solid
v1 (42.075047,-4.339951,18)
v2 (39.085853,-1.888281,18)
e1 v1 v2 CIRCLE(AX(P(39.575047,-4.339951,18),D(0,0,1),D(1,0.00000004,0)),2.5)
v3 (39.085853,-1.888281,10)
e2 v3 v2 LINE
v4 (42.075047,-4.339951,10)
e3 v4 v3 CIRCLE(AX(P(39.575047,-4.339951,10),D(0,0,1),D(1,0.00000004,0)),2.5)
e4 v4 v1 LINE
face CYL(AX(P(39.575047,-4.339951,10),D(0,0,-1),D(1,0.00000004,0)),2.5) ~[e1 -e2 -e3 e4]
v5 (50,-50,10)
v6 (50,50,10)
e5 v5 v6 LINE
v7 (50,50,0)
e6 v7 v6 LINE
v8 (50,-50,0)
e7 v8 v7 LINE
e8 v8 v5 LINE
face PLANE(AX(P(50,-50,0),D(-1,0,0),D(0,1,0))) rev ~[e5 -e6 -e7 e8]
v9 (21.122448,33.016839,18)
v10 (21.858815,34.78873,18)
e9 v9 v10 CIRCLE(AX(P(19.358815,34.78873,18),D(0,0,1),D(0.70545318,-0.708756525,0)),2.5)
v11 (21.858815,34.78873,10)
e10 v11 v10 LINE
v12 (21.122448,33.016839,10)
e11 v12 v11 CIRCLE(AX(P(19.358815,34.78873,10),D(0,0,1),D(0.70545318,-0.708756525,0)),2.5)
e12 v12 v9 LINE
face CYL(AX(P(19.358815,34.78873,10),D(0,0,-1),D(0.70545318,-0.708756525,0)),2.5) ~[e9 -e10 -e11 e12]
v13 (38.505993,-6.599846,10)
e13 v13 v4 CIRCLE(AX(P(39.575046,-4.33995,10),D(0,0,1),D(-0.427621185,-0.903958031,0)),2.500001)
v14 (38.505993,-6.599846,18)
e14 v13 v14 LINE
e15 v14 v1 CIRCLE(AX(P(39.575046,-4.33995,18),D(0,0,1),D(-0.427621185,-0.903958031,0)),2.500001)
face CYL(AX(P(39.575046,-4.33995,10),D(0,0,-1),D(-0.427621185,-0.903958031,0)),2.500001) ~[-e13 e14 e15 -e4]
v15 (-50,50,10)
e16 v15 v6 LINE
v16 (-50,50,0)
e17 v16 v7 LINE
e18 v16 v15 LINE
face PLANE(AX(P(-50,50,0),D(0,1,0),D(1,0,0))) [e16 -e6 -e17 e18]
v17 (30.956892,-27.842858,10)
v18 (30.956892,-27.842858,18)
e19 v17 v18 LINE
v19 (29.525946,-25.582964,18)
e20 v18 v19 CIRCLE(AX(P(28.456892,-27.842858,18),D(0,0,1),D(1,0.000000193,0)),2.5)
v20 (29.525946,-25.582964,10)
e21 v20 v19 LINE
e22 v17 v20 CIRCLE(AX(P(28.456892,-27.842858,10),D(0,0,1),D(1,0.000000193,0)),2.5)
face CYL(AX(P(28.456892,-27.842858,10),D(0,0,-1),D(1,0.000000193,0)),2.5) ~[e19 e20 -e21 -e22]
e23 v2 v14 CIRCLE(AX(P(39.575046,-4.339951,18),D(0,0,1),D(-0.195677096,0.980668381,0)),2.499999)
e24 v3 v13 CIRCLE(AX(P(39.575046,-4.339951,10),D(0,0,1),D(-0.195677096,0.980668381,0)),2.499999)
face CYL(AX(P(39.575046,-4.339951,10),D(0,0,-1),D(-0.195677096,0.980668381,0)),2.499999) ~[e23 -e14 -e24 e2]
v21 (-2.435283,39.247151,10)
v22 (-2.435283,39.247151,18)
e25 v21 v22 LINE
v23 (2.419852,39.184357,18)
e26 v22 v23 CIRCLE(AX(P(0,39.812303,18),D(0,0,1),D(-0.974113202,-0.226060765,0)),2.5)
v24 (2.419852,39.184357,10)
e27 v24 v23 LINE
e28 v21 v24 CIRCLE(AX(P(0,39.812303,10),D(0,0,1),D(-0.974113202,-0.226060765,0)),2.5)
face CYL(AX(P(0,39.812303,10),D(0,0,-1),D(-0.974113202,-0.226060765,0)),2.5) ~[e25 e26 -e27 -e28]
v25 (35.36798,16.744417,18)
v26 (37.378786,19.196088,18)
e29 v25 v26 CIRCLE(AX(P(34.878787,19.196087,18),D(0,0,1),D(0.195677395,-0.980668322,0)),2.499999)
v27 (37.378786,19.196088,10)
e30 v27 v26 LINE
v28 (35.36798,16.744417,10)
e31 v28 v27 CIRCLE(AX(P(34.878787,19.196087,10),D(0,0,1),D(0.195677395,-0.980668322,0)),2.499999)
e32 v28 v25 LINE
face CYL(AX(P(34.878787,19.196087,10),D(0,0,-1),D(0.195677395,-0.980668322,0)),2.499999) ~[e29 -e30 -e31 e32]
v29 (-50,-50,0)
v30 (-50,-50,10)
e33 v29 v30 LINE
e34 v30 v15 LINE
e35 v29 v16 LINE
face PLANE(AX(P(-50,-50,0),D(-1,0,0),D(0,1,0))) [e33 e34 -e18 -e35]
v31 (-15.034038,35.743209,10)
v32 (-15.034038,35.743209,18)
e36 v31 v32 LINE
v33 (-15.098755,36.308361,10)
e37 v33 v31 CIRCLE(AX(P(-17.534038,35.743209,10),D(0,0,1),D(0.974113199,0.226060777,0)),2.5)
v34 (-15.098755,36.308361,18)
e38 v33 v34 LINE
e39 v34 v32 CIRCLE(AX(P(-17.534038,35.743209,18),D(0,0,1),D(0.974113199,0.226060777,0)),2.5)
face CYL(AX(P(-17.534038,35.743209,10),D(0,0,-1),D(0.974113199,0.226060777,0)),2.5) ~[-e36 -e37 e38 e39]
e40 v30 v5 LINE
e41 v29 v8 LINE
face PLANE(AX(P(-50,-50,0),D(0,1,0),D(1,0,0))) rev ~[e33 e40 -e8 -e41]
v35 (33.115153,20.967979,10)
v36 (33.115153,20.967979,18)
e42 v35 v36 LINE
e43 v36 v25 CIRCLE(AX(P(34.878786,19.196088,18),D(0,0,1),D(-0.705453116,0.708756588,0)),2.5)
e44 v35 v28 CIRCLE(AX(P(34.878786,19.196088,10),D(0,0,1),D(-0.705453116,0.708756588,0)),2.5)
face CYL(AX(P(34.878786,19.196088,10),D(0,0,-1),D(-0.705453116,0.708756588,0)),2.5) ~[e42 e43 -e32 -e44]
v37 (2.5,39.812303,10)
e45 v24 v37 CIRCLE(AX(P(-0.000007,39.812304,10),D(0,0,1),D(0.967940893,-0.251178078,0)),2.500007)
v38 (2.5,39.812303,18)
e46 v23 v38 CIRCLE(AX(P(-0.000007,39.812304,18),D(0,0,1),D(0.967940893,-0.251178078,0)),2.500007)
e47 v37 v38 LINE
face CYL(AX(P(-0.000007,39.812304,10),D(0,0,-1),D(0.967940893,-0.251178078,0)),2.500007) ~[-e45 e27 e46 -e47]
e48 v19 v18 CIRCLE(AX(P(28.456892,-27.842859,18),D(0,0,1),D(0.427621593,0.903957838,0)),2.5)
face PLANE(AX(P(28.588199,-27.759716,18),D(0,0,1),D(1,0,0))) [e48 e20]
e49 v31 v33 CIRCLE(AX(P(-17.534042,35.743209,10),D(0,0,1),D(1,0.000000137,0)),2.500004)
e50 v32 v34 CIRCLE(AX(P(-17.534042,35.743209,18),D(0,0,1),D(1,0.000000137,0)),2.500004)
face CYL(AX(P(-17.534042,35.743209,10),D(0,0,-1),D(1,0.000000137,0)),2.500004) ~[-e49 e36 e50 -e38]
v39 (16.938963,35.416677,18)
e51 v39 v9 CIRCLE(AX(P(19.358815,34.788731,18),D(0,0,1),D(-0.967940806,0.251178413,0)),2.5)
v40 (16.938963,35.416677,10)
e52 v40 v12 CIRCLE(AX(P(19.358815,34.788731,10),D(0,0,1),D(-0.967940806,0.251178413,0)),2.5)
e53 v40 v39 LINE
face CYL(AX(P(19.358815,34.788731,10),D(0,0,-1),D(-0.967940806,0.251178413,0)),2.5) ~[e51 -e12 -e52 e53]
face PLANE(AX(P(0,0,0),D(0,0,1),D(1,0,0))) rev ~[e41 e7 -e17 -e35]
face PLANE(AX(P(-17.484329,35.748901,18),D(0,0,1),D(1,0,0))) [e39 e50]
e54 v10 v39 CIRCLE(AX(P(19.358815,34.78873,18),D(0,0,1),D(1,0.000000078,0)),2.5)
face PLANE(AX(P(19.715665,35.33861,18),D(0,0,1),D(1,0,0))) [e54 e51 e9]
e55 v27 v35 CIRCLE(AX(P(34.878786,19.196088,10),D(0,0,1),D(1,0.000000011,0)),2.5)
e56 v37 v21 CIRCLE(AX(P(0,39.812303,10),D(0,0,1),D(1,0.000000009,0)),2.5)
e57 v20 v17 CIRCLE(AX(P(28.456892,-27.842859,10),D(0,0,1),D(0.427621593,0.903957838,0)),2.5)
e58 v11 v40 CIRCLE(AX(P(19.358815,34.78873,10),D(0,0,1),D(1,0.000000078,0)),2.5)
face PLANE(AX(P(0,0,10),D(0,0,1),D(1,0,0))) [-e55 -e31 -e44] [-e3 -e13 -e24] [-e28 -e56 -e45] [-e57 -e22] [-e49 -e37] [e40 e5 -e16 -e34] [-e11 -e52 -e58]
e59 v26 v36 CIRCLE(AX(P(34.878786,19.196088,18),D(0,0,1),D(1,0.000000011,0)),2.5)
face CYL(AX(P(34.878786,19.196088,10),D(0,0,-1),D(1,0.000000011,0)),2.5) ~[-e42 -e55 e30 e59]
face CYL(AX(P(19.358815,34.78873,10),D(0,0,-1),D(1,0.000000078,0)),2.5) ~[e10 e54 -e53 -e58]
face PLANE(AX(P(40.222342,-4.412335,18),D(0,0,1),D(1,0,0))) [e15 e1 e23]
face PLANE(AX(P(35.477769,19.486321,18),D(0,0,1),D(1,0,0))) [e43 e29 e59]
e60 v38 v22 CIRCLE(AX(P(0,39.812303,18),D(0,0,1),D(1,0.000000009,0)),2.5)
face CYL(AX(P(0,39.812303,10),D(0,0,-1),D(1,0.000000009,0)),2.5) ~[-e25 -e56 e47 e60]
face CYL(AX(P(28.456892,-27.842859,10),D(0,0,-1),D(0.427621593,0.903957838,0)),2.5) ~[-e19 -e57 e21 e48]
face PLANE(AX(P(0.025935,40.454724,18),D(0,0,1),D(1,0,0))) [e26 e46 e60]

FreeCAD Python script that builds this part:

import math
import FreeCAD as App
import Part
import Sketcher

V = App.Vector
Q = App.Units.Quantity


def add_polygon(sketch, points):
    """Adds a closed chain of lines whose ends are joined by coincident constraints."""
    first, n = sketch.GeometryCount, len(points)
    for a, b in zip(points, points[1:] + points[:1]):
        sketch.addGeometry(Part.LineSegment(App.Vector(*a, 0), App.Vector(*b, 0)), False)
    for i in range(n):
        sketch.addConstraint(Sketcher.Constraint("Coincident", first + i, 2, first + (i + 1) % n, 1))

doc = App.newDocument("Part")
body = doc.addObject("PartDesign::Body", "Body")

sketch1 = doc.addObject("Sketcher::SketchObject", "Sketch")
body.addObject(sketch1)
sketch1.AttachmentSupport = (doc.XY_Plane, [""])
sketch1.MapMode = "FlatFace"
add_polygon(sketch1, [(-50, 50), (-50, -50), (50, -50), (50, 50)])
sketch1.addConstraint([
    Sketcher.Constraint("Vertical", 0),
    Sketcher.Constraint("Horizontal", 1),
    Sketcher.Constraint("Vertical", 2),
    Sketcher.Constraint("Horizontal", 3),
    Sketcher.Constraint("Symmetric", 0, 2, 2, 2, -1, 1),
    Sketcher.Constraint("Equal", 3, 0),
    Sketcher.Constraint("DistanceX", 1, 1, 1, 2, Q("100 mm")),
])
pad1 = doc.addObject("PartDesign::Pad", "Pad")
body.addObject(pad1)
pad1.Profile = sketch1
pad1.Length = 10

sketch2 = doc.addObject("Sketcher::SketchObject", "Sketch001")
body.addObject(sketch2)
sketch2.AttachmentSupport = (doc.XY_Plane, [""])
sketch2.MapMode = "FlatFace"
sketch2.AttachmentOffset = App.Placement(V(0, 0, 10), App.Rotation())
sketch2.addGeometry([
    Part.ArcOfCircle(Part.Circle(V(-17.534038, 35.743209, 0), V(0, 0, 1), 2.5), math.radians(13.065263), math.radians(359.999998)),
    Part.ArcOfCircle(Part.Circle(V(-17.534042, 35.743209, 0), V(0, 0, 1), 2.500004), math.radians(0.000008), math.radians(13.065254)),
    Part.ArcOfCircle(Part.Circle(V(28.456892, -27.842858, 0), V(0, 0, 1), 2.5), math.radians(0.000011), math.radians(64.683287)),
    Part.ArcOfCircle(Part.Circle(V(28.456892, -27.842859, 0), V(0, 0, 1), 2.5), math.radians(64.683285), math.radians(360.000013)),
    Part.ArcOfCircle(Part.Circle(V(39.575047, -4.339951, 0), V(0, 0, 1), 2.5), math.radians(0.000002), math.radians(101.284324)),
    Part.ArcOfCircle(Part.Circle(V(39.575046, -4.339951, 0), V(0, 0, 1), 2.499999), math.radians(101.28428), math.radians(244.683313)),
    Part.ArcOfCircle(Part.Circle(V(39.575046, -4.33995, 0), V(0, 0, 1), 2.500001), math.radians(-115.316689), math.radians(-0.000017)),
    Part.ArcOfCircle(Part.Circle(V(34.878786, 19.196088, 0), V(0, 0, 1), 2.5), math.radians(0.000001), math.radians(134.866174)),
    Part.ArcOfCircle(Part.Circle(V(34.878786, 19.196088, 0), V(0, 0, 1), 2.5), math.radians(134.866162), math.radians(281.284316)),
    Part.ArcOfCircle(Part.Circle(V(34.878787, 19.196087, 0), V(0, 0, 1), 2.499999), math.radians(-78.715702), math.radians(0.000019)),
    Part.ArcOfCircle(Part.Circle(V(19.358815, 34.78873, 0), V(0, 0, 1), 2.5), math.radians(0.000004), math.radians(165.452718)),
    Part.ArcOfCircle(Part.Circle(V(19.358815, 34.788731, 0), V(0, 0, 1), 2.5), math.radians(165.452744), math.radians(314.866154)),
    Part.ArcOfCircle(Part.Circle(V(19.358815, 34.78873, 0), V(0, 0, 1), 2.5), math.radians(-45.133833), math.radians(-0.000004)),
    Part.ArcOfCircle(Part.Circle(V(0, 39.812303, 0), V(0, 0, 1), 2.5), math.radians(0.000001), math.radians(193.065264)),
    Part.ArcOfCircle(Part.Circle(V(0, 39.812303, 0), V(0, 0, 1), 2.5), math.radians(-166.934737), math.radians(-14.547253)),
    Part.ArcOfCircle(Part.Circle(V(-0.000007, 39.812304, 0), V(0, 0, 1), 2.500007), math.radians(-14.547236), math.radians(-0.000023)),
], False)
sketch2.addConstraint([
    Sketcher.Constraint("Coincident", 0, 1, 1, 2),
    Sketcher.Constraint("Coincident", 1, 1, 0, 2),
    Sketcher.Constraint("Coincident", 2, 1, 3, 2),
    Sketcher.Constraint("Coincident", 3, 1, 2, 2),
    Sketcher.Constraint("Coincident", 4, 2, 5, 1),
    Sketcher.Constraint("Coincident", 5, 2, 6, 1),
    Sketcher.Constraint("Coincident", 6, 2, 4, 1),
    Sketcher.Constraint("Coincident", 7, 2, 8, 1),
    Sketcher.Constraint("Coincident", 8, 2, 9, 1),
    Sketcher.Constraint("Coincident", 9, 2, 7, 1),
    Sketcher.Constraint("Coincident", 10, 2, 11, 1),
    Sketcher.Constraint("Coincident", 11, 2, 12, 1),
    Sketcher.Constraint("Coincident", 12, 2, 10, 1),
    Sketcher.Constraint("Coincident", 13, 2, 14, 1),
    Sketcher.Constraint("Coincident", 14, 2, 15, 1),
    Sketcher.Constraint("Coincident", 15, 2, 13, 1),
    Sketcher.Constraint("Coincident", 5, 3, 4, 3),
    Sketcher.Constraint("Coincident", 8, 3, 7, 3),
    Sketcher.Constraint("Coincident", 11, 3, 10, 3),
    Sketcher.Constraint("Coincident", 14, 3, 13, 3),
    Sketcher.Constraint("PointOnObject", 13, 3, -2),
    Sketcher.Constraint("Radius", 0, Q("2.5 mm")),
    Sketcher.Constraint("Radius", 2, Q("2.5 mm")),
    Sketcher.Constraint("Radius", 3, Q("2.5 mm")),
    Sketcher.Constraint("Radius", 4, Q("2.5 mm")),
    Sketcher.Constraint("Radius", 6, Q("2.500001 mm")),
    Sketcher.Constraint("Radius", 7, Q("2.5 mm")),
    Sketcher.Constraint("Radius", 9, Q("2.499999 mm")),
    Sketcher.Constraint("Radius", 10, Q("2.5 mm")),
    Sketcher.Constraint("Radius", 12, Q("2.5 mm")),
    Sketcher.Constraint("Radius", 13, Q("2.5 mm")),
    Sketcher.Constraint("Radius", 1, Q("2.500004 mm")),
    Sketcher.Constraint("Radius", 15, Q("2.500007 mm")),
    Sketcher.Constraint("DistanceX", 3, 1, 5, 3, Q("10.0491 mm")),
    Sketcher.Constraint("DistanceY", 4, 2, 8, 2, Q("18.632698 mm")),
    Sketcher.Constraint("DistanceY", -1, 1, 0, 3, Q("35.743209 mm")),
    Sketcher.Constraint("DistanceX", 1, 3, -1, 1, Q("17.534042 mm")),
    Sketcher.Constraint("DistanceY", 2, 3, -1, 1, Q("27.842858 mm")),
    Sketcher.Constraint("DistanceY", 4, 3, -1, 1, Q("4.339951 mm")),
    Sketcher.Constraint("DistanceY", -1, 1, 10, 3, Q("34.78873 mm")),
    Sketcher.Constraint("DistanceY", -1, 1, 0, 1, Q("36.308361 mm")),
    Sketcher.Constraint("DistanceY", -1, 1, 1, 1, Q("35.743209 mm")),
    Sketcher.Constraint("DistanceX", -1, 1, 2, 1, Q("30.956892 mm")),
    Sketcher.Constraint("DistanceY", 4, 2, -1, 1, Q("1.888281 mm")),
    Sketcher.Constraint("DistanceY", 6, 2, -1, 1, Q("4.339951 mm")),
    Sketcher.Constraint("DistanceY", -1, 1, 7, 2, Q("20.967979 mm")),
    Sketcher.Constraint("DistanceX", -1, 1, 8, 2, Q("35.36798 mm")),
    Sketcher.Constraint("DistanceY", -1, 1, 11, 2, Q("33.016839 mm")),
    Sketcher.Constraint("DistanceY", -1, 1, 12, 2, Q("34.78873 mm")),
    Sketcher.Constraint("DistanceY", -1, 1, 13, 2, Q("39.247151 mm")),
    Sketcher.Constraint("DistanceX", 1, 3, 4, 3, Q("57.109089 mm")),
    Sketcher.Constraint("DistanceX", 7, 3, 6, 3, Q("4.69626 mm")),
    Sketcher.Constraint("DistanceX", 10, 3, 7, 3, Q("15.519971 mm")),
    Sketcher.Constraint("DistanceY", 0, 1, 14, 3, Q("3.503942 mm")),
    Sketcher.Constraint("DistanceX", 5, 2, 4, 2, Q("0.57986 mm")),
    Sketcher.Constraint("DistanceY", 8, 2, 9, 2, Q("2.451671 mm")),
    Sketcher.Constraint("DistanceX", 10, 2, 10, 3, Q("2.419852 mm")),
    Sketcher.Constraint("DistanceX", 15, 3, 14, 2, Q("2.419859 mm")),
    Sketcher.Constraint("DistanceY", 2, 1, -1, 1, Q("27.842858 mm")),
    Sketcher.Constraint("DistanceY", -1, 1, 15, 2, Q("39.812303 mm")),
])
pad2 = doc.addObject("PartDesign::Pad", "Pad001")
body.addObject(pad2)
pad2.Profile = sketch2
pad2.Length = 8

doc.recompute()
